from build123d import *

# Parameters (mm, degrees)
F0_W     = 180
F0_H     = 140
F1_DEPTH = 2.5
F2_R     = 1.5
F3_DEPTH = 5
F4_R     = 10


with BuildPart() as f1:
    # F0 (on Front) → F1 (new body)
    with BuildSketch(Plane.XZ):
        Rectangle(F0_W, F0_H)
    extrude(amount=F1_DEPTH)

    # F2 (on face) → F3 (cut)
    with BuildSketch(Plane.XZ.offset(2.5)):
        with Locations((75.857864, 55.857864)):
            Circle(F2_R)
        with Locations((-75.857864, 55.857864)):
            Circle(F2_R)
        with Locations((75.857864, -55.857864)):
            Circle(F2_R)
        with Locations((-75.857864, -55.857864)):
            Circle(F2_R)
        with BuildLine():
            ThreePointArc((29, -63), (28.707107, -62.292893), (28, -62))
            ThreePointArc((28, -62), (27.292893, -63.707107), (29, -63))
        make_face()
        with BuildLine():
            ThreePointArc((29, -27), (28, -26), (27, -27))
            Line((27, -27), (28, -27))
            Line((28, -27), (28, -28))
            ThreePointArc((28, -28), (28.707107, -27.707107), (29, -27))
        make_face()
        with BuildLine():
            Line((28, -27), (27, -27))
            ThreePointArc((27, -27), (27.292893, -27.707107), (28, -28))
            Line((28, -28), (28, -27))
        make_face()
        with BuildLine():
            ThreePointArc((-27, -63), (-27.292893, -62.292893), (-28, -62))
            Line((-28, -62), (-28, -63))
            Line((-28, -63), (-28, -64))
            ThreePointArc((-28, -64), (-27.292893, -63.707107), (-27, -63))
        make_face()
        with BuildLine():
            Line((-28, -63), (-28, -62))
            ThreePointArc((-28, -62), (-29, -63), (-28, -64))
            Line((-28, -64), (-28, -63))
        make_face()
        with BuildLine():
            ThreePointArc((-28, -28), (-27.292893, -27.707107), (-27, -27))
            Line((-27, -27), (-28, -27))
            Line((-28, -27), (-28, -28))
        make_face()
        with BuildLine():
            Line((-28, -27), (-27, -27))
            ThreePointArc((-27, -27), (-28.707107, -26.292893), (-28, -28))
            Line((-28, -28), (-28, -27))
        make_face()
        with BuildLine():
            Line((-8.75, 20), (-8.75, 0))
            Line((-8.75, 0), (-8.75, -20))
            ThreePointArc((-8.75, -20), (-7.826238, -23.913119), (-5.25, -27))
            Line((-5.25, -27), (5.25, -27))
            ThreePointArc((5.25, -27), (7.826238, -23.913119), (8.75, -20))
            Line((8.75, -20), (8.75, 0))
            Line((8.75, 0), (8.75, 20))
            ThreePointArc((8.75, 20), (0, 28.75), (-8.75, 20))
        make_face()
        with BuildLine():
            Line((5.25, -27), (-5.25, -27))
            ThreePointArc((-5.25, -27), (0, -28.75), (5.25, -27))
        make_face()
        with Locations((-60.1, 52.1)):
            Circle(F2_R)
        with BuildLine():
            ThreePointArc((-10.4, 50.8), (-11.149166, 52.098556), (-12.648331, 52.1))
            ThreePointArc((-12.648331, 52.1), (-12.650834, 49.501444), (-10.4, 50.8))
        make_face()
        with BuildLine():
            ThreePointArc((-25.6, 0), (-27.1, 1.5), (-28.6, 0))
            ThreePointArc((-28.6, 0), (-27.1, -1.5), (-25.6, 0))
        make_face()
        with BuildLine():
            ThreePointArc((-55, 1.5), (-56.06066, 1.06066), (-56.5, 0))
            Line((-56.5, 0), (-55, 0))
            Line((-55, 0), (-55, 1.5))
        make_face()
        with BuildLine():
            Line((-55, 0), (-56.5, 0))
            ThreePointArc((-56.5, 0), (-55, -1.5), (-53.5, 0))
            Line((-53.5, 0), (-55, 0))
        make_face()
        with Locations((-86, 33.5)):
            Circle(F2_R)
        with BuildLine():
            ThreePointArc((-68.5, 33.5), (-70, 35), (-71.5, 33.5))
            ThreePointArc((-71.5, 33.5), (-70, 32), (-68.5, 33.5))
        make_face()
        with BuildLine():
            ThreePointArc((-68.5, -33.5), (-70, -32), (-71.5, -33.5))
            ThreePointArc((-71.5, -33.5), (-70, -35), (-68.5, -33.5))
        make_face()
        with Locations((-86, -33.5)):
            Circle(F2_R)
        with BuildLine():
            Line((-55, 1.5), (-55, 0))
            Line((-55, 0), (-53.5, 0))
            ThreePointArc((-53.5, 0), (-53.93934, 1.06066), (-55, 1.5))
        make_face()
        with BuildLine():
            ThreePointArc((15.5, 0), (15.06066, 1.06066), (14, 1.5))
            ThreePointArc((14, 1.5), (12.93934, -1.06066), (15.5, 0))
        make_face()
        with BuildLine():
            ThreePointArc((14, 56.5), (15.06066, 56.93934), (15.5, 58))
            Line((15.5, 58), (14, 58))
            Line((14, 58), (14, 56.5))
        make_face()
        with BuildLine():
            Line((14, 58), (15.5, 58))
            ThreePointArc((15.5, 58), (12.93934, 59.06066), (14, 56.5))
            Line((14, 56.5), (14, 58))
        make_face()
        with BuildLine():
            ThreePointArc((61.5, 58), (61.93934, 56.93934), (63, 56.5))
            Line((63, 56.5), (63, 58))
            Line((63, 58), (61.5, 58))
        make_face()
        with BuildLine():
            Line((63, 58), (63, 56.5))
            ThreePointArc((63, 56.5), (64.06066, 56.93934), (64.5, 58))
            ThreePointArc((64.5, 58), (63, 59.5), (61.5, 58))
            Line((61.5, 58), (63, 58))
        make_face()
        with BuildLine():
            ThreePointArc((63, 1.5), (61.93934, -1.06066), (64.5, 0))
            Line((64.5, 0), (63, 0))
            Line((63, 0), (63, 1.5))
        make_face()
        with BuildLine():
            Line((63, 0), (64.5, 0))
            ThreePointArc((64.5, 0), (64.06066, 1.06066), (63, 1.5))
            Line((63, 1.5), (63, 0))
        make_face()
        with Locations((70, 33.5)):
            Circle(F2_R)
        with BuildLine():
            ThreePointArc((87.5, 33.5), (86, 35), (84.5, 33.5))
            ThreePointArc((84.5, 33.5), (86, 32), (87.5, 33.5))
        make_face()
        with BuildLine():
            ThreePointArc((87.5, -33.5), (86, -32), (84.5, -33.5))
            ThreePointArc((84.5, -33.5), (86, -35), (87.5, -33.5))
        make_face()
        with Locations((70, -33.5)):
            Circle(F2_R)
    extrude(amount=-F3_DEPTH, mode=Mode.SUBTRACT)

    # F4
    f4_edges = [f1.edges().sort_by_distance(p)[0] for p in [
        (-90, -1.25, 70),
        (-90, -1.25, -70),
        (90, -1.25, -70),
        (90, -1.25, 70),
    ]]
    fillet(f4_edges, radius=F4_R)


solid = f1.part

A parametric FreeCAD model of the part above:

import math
import FreeCAD as App
import Part
import Sketcher

V = App.Vector


def edges_at(feature, points):
    """Names of the edges that pass closest to the given points."""
    edges = feature.Shape.Edges
    near = lambda p: min(range(len(edges)), key=lambda i: edges[i].distToShape(Part.Vertex(*p))[0])
    return sorted({f"Edge{near(p) + 1}" for p in points})

doc = App.newDocument("Part")
params = doc.addObject("Spreadsheet::Sheet", "Params")
for row, (alias, value) in enumerate([
    ("sketch1_width", "180 mm"),
    ("sketch1_height", "140 mm"),
    ("pad1_length", "2.5 mm"),
    ("sketch2_diameter", "3 mm"),
    ("sketch2_radius", "0.999999 mm"),
    ("sketch2_height", "40 mm"),
    ("sketch2_radius2", "8.749999 mm"),
    ("pocket1_length", "5 mm"),
    ("fillet_radius", "10 mm"),
], start=1):
    params.set(f"A{row}", alias)
    params.set(f"B{row}", "=" + value)
    params.setAlias(f"B{row}", alias)

body = doc.addObject("PartDesign::Body", "Body")

sketch1 = body.newObject("Sketcher::SketchObject", "Sketch")
sketch1.AttachmentSupport = (doc.getObject("XZ_Plane"), [""])
sketch1.MapMode = "FlatFace"
sketch1.addGeometry(Part.LineSegment(V(-90, 70, 0), V(-90, -70, 0)), False)
sketch1.addGeometry(Part.LineSegment(V(-90, -70, 0), V(90, -70, 0)), False)
sketch1.addGeometry(Part.LineSegment(V(90, -70, 0), V(90, 70, 0)), False)
sketch1.addGeometry(Part.LineSegment(V(90, 70, 0), V(-90, 70, 0)), False)
sketch1.addConstraint(Sketcher.Constraint("Coincident", 0, 2, 1, 1))
sketch1.addConstraint(Sketcher.Constraint("Coincident", 1, 2, 2, 1))
sketch1.addConstraint(Sketcher.Constraint("Coincident", 2, 2, 3, 1))
sketch1.addConstraint(Sketcher.Constraint("Coincident", 3, 2, 0, 1))
sketch1.addConstraint(Sketcher.Constraint("Vertical", 0))
sketch1.addConstraint(Sketcher.Constraint("Horizontal", 1))
sketch1.addConstraint(Sketcher.Constraint("Vertical", 2))
sketch1.addConstraint(Sketcher.Constraint("Horizontal", 3))
sketch1.addConstraint(Sketcher.Constraint("Symmetric", 0, 2, 2, 2, -1, 1))
sketch1.addConstraint(Sketcher.Constraint("DistanceX", 1, 1, 1, 2, 180.0))
sketch1.addConstraint(Sketcher.Constraint("DistanceY", 0, 2, 0, 1, 140.0))
sketch1.setExpression("Constraints[9]", "Params.sketch1_width")
sketch1.setExpression("Constraints[10]", "Params.sketch1_height")
pad1 = body.newObject("PartDesign::Pad", "Pad")
pad1.Profile = sketch1
pad1.setExpression("Length", "Params.pad1_length")

sketch2 = body.newObject("Sketcher::SketchObject", "Sketch001")
sketch2.AttachmentSupport = (doc.getObject("XZ_Plane"), [""])
sketch2.MapMode = "FlatFace"
sketch2.AttachmentOffset = App.Placement(V(0, 0, 2.5), App.Rotation())
sketch2.addGeometry(Part.Circle(V(75.9, 55.9, 0), V(0, 0, 1), 1.5), False)
sketch2.addGeometry(Part.Circle(V(-75.9, 55.9, 0), V(0, 0, 1), 1.5), False)
sketch2.addGeometry(Part.Circle(V(75.9, -55.9, 0), V(0, 0, 1), 1.5), False)
sketch2.addGeometry(Part.Circle(V(-75.9, -55.9, 0), V(0, 0, 1), 1.5), False)
sketch2.addGeometry(Part.ArcOfCircle(Part.Circle(V(28, -63, 0), V(0, 0, 1), 1), math.radians(0), math.radians(90)), False)
sketch2.addGeometry(Part.ArcOfCircle(Part.Circle(V(28, -63, 0), V(0, 0, 1), 1), math.radians(90), math.radians(360)), False)
sketch2.addGeometry(Part.ArcOfCircle(Part.Circle(V(28, -27, 0), V(0, 0, 1), 1), math.radians(0), math.radians(180)), False)
sketch2.addGeometry(Part.ArcOfCircle(Part.Circle(V(28, -27, 0), V(0, 0, 1), 1), math.radians(180), math.radians(270)), False)
sketch2.addGeometry(Part.ArcOfCircle(Part.Circle(V(28, -27, 0), V(0, 0, 1), 1), math.radians(-90), math.radians(0)), False)
sketch2.addGeometry(Part.ArcOfCircle(Part.Circle(V(-28, -63, 0), V(0, 0, 1), 1), math.radians(0), math.radians(90)), False)
sketch2.addGeometry(Part.ArcOfCircle(Part.Circle(V(-28, -63, 0), V(0, 0, 1), 1), math.radians(90), math.radians(270)), False)
sketch2.addGeometry(Part.ArcOfCircle(Part.Circle(V(-28, -63, 0), V(0, 0, 1), 1), math.radians(-90), math.radians(0)), False)
sketch2.addGeometry(Part.ArcOfCircle(Part.Circle(V(-28, -27, 0), V(0, 0, 1), 1), math.radians(-90), math.radians(0)), False)
sketch2.addGeometry(Part.ArcOfCircle(Part.Circle(V(-28, -27, 0), V(0, 0, 1), 1), math.radians(0), math.radians(270)), False)
sketch2.addGeometry(Part.LineSegment(V(-8.8, 20, 0), V(-8.8, -20, 0)), False)
sketch2.addGeometry(Part.ArcOfCircle(Part.Circle(V(0, -20, 0), V(0, 0, 1), 8.7), math.radians(180), math.radians(233)), False)
sketch2.addGeometry(Part.ArcOfCircle(Part.Circle(V(0, -20, 0), V(0, 0, 1), 8.8), math.radians(-127), math.radians(-53)), False)
sketch2.addGeometry(Part.ArcOfCircle(Part.Circle(V(0, -20, 0), V(0, 0, 1), 8.7), math.radians(-53), math.radians(0)), False)
sketch2.addGeometry(Part.LineSegment(V(8.8, -20, 0), V(8.8, 20, 0)), False)
sketch2.addGeometry(Part.ArcOfCircle(Part.Circle(V(0, 20, 0), V(0, 0, 1), 8.8), math.radians(0), math.radians(180)), False)
sketch2.addGeometry(Part.Circle(V(-60.1, 52.1, 0), V(0, 0, 1), 1.5), False)
sketch2.addGeometry(Part.ArcOfCircle(Part.Circle(V(-11.9, 50.8, 0), V(0, 0, 1), 1.5), math.radians(0), math.radians(120)), False)
sketch2.addGeometry(Part.ArcOfCircle(Part.Circle(V(-11.9, 50.8, 0), V(0, 0, 1), 1.5), math.radians(120), math.radians(360)), False)
sketch2.addGeometry(Part.Circle(V(-27.1, 0, 0), V(0, 0, 1), 1.5), False)
sketch2.addGeometry(Part.ArcOfCircle(Part.Circle(V(-55, 0, 0), V(0, 0, 1), 1.5), math.radians(90), math.radians(180)), False)
sketch2.addGeometry(Part.ArcOfCircle(Part.Circle(V(-55, 0, 0), V(0, 0, 1), 1.5), math.radians(180), math.radians(360)), False)
sketch2.addGeometry(Part.ArcOfCircle(Part.Circle(V(-55, 0, 0), V(0, 0, 1), 1.5), math.radians(0), math.radians(90)), False)
sketch2.addGeometry(Part.Circle(V(-86, 33.5, 0), V(0, 0, 1), 1.5), False)
sketch2.addGeometry(Part.Circle(V(-70, 33.5, 0), V(0, 0, 1), 1.5), False)
sketch2.addGeometry(Part.Circle(V(-70, -33.5, 0), V(0, 0, 1), 1.5), False)
sketch2.addGeometry(Part.Circle(V(-86, -33.5, 0), V(0, 0, 1), 1.5), False)
sketch2.addGeometry(Part.ArcOfCircle(Part.Circle(V(14, 0, 0), V(0, 0, 1), 1.5), math.radians(0), math.radians(90)), False)
sketch2.addGeometry(Part.ArcOfCircle(Part.Circle(V(14, 0, 0), V(0, 0, 1), 1.5), math.radians(90), math.radians(360)), False)
sketch2.addGeometry(Part.ArcOfCircle(Part.Circle(V(14, 58, 0), V(0, 0, 1), 1.5), math.radians(-90), math.radians(0)), False)
sketch2.addGeometry(Part.ArcOfCircle(Part.Circle(V(14, 58, 0), V(0, 0, 1), 1.5), math.radians(0), math.radians(270)), False)
sketch2.addGeometry(Part.ArcOfCircle(Part.Circle(V(63, 58, 0), V(0, 0, 1), 1.5), math.radians(-180), math.radians(-90)), False)
sketch2.addGeometry(Part.ArcOfCircle(Part.Circle(V(63, 58, 0), V(0, 0, 1), 1.5), math.radians(-90), math.radians(0)), False)
sketch2.addGeometry(Part.ArcOfCircle(Part.Circle(V(63, 58, 0), V(0, 0, 1), 1.5), math.radians(0), math.radians(180)), False)
sketch2.addGeometry(Part.ArcOfCircle(Part.Circle(V(63, 0, 0), V(0, 0, 1), 1.5), math.radians(90), math.radians(360)), False)
sketch2.addGeometry(Part.ArcOfCircle(Part.Circle(V(63, 0, 0), V(0, 0, 1), 1.5), math.radians(0), math.radians(90)), False)
sketch2.addGeometry(Part.Circle(V(70, 33.5, 0), V(0, 0, 1), 1.5), False)
sketch2.addGeometry(Part.Circle(V(86, 33.5, 0), V(0, 0, 1), 1.5), False)
sketch2.addGeometry(Part.Circle(V(86, -33.5, 0), V(0, 0, 1), 1.5), False)
sketch2.addGeometry(Part.Circle(V(70, -33.5, 0), V(0, 0, 1), 1.5), False)
sketch2.addConstraint(Sketcher.Constraint("Tangent", 4, 1, 5, 2))
sketch2.addConstraint(Sketcher.Constraint("Coincident", 5, 1, 4, 2))
sketch2.addConstraint(Sketcher.Constraint("Tangent", 6, 2, 7, 1))
sketch2.addConstraint(Sketcher.Constraint("Tangent", 7, 2, 8, 1))
sketch2.addConstraint(Sketcher.Constraint("Tangent", 8, 2, 6, 1))
sketch2.addConstraint(Sketcher.Constraint("Tangent", 9, 2, 10, 1))
sketch2.addConstraint(Sketcher.Constraint("Tangent", 10, 2, 11, 1))
sketch2.addConstraint(Sketcher.Constraint("Tangent", 11, 2, 9, 1))
sketch2.addConstraint(Sketcher.Constraint("Tangent", 12, 1, 13, 2))
sketch2.addConstraint(Sketcher.Constraint("Coincident", 13, 1, 12, 2))
sketch2.addConstraint(Sketcher.Constraint("Tangent", 14, 2, 15, 1))
sketch2.addConstraint(Sketcher.Constraint("Tangent", 15, 2, 16, 1))
sketch2.addConstraint(Sketcher.Constraint("Tangent", 16, 2, 17, 1))
sketch2.addConstraint(Sketcher.Constraint("Tangent", 17, 2, 18, 1))
sketch2.addConstraint(Sketcher.Constraint("Tangent", 18, 2, 19, 1))
sketch2.addConstraint(Sketcher.Constraint("Tangent", 19, 2, 14, 1))
sketch2.addConstraint(Sketcher.Constraint("Tangent", 21, 1, 22, 2))
sketch2.addConstraint(Sketcher.Constraint("Coincident", 22, 1, 21, 2))
sketch2.addConstraint(Sketcher.Constraint("Tangent", 24, 2, 25, 1))
sketch2.addConstraint(Sketcher.Constraint("Tangent", 25, 2, 26, 1))
sketch2.addConstraint(Sketcher.Constraint("Tangent", 26, 2, 24, 1))
sketch2.addConstraint(Sketcher.Constraint("Tangent", 31, 1, 32, 2))
sketch2.addConstraint(Sketcher.Constraint("Coincident", 32, 1, 31, 2))
sketch2.addConstraint(Sketcher.Constraint("Tangent", 33, 1, 34, 2))
sketch2.addConstraint(Sketcher.Constraint("Coincident", 34, 1, 33, 2))
sketch2.addConstraint(Sketcher.Constraint("Tangent", 35, 2, 36, 1))
sketch2.addConstraint(Sketcher.Constraint("Tangent", 36, 2, 37, 1))
sketch2.addConstraint(Sketcher.Constraint("Tangent", 37, 2, 35, 1))
sketch2.addConstraint(Sketcher.Constraint("Tangent", 38, 1, 39, 2))
sketch2.addConstraint(Sketcher.Constraint("Coincident", 39, 1, 38, 2))
sketch2.addConstraint(Sketcher.Constraint("Vertical", 14))
sketch2.addConstraint(Sketcher.Constraint("Vertical", 18))
sketch2.addConstraint(Sketcher.Constraint("Coincident", 17, 3, 15, 3))
sketch2.addConstraint(Sketcher.Constraint("Equal", 0, 1))
sketch2.addConstraint(Sketcher.Constraint("Equal", 1, 2))
sketch2.addConstraint(Sketcher.Constraint("Equal", 2, 3))
sketch2.addConstraint(Sketcher.Constraint("Equal", 5, 6))
sketch2.addConstraint(Sketcher.Constraint("Equal", 8, 9))
sketch2.addConstraint(Sketcher.Constraint("Equal", 11, 12))
sketch2.addConstraint(Sketcher.Constraint("Equal", 3, 20))
sketch2.addConstraint(Sketcher.Constraint("Equal", 20, 21))
sketch2.addConstraint(Sketcher.Constraint("Equal", 22, 23))
sketch2.addConstraint(Sketcher.Constraint("Equal", 23, 24))
sketch2.addConstraint(Sketcher.Constraint("Equal", 26, 27))
sketch2.addConstraint(Sketcher.Constraint("Equal", 27, 28))
sketch2.addConstraint(Sketcher.Constraint("Equal", 28, 29))
sketch2.addConstraint(Sketcher.Constraint("Equal", 29, 30))
sketch2.addConstraint(Sketcher.Constraint("Equal", 30, 31))
sketch2.addConstraint(Sketcher.Constraint("Equal", 32, 33))
sketch2.addConstraint(Sketcher.Constraint("Equal", 34, 35))
sketch2.addConstraint(Sketcher.Constraint("Equal", 37, 38))
sketch2.addConstraint(Sketcher.Constraint("Equal", 39, 40))
sketch2.addConstraint(Sketcher.Constraint("Equal", 40, 41))
sketch2.addConstraint(Sketcher.Constraint("Equal", 41, 42))
sketch2.addConstraint(Sketcher.Constraint("Equal", 42, 43))
sketch2.addConstraint(Sketcher.Constraint("Symmetric", 1, 3, 2, 3, -1, 1))
sketch2.addConstraint(Sketcher.Constraint("Symmetric", 0, 3, 3, 3, -1, 1))
sketch2.addConstraint(Sketcher.Constraint("Symmetric", 15, 3, 19, 3, -1, 1))
sketch2.addConstraint(Sketcher.Constraint("Symmetric", 29, 3, 40, 3, -1, 1))
sketch2.addConstraint(Sketcher.Constraint("Symmetric", 30, 3, 41, 3, -1, 1))
sketch2.addConstraint(Sketcher.Constraint("Symmetric", 27, 3, 42, 3, -1, 1))
sketch2.addConstraint(Sketcher.Constraint("Symmetric", 28, 3, 43, 3, -1, 1))
sketch2.addConstraint(Sketcher.Constraint("Symmetric", 0, 3, 1, 3, -2))
sketch2.addConstraint(Sketcher.Constraint("Symmetric", 4, 3, 9, 3, -2))
sketch2.addConstraint(Sketcher.Constraint("Symmetric", 6, 3, 12, 3, -2))
sketch2.addConstraint(Sketcher.Constraint("Symmetric", 28, 3, 40, 3, -2))
sketch2.addConstraint(Sketcher.Constraint("Symmetric", 27, 3, 41, 3, -2))
sketch2.addConstraint(Sketcher.Constraint("PointOnObject", 23, 3, -1))
sketch2.addConstraint(Sketcher.Constraint("PointOnObject", 24, 3, -1))
sketch2.addConstraint(Sketcher.Constraint("PointOnObject", 31, 3, -1))
sketch2.addConstraint(Sketcher.Constraint("PointOnObject", 38, 3, -1))
sketch2.addConstraint(Sketcher.Constraint("PointOnObject", 24, 2, -1))
sketch2.addConstraint(Sketcher.Constraint("PointOnObject", 25, 2, -1))
sketch2.addConstraint(Sketcher.Constraint("PointOnObject", 31, 1, -1))
sketch2.addConstraint(Sketcher.Constraint("PointOnObject", 39, 1, -1))
sketch2.addConstraint(Sketcher.Constraint("Horizontal", 27, 3, 28, 3))
sketch2.addConstraint(Sketcher.Constraint("Horizontal", 34, 3, 35, 3))
sketch2.addConstraint(Sketcher.Constraint("Horizontal", 11, 3, 4, 1))
sketch2.addConstraint(Sketcher.Constraint("Horizontal", 13, 3, 6, 2))
sketch2.addConstraint(Sketcher.Constraint("Horizontal", 6, 2, 8, 2))
sketch2.addConstraint(Sketcher.Constraint("Horizontal", 4, 1, 11, 2))
sketch2.addConstraint(Sketcher.Constraint("Horizontal", 8, 2, 13, 1))
sketch2.addConstraint(Sketcher.Constraint("Horizontal", 13, 1, 15, 2))
sketch2.addConstraint(Sketcher.Constraint("Horizontal", 15, 2, 16, 2))
sketch2.addConstraint(Sketcher.Constraint("Horizontal", 22, 3, 21, 1))
sketch2.addConstraint(Sketcher.Constraint("Horizontal", 20, 3, 22, 1))
sketch2.addConstraint(Sketcher.Constraint("Horizontal", 37, 3, 34, 1))
sketch2.addConstraint(Sketcher.Constraint("Horizontal", 34, 1, 36, 2))
sketch2.addConstraint(Sketcher.Constraint("Horizontal", 36, 2, 37, 2))
sketch2.addConstraint(Sketcher.Constraint("Vertical", 5, 3, 6, 3))
sketch2.addConstraint(Sketcher.Constraint("Vertical", 32, 3, 33, 3))
sketch2.addConstraint(Sketcher.Constraint("Vertical", 37, 3, 38, 3))
sketch2.addConstraint(Sketcher.Constraint("Vertical", 8, 3, 5, 1))
sketch2.addConstraint(Sketcher.Constraint("Vertical", 5, 1, 7, 2))
sketch2.addConstraint(Sketcher.Constraint("Vertical", 13, 3, 9, 2))
sketch2.addConstraint(Sketcher.Constraint("Vertical", 9, 2, 10, 2))
sketch2.addConstraint(Sketcher.Constraint("Vertical", 10, 2, 12, 1))
sketch2.addConstraint(Sketcher.Constraint("Vertical", 25, 3, 26, 2))
sketch2.addConstraint(Sketcher.Constraint("Vertical", 34, 3, 32, 1))
sketch2.addConstraint(Sketcher.Constraint("Vertical", 32, 1, 33, 1))
sketch2.addConstraint(Sketcher.Constraint("Vertical", 39, 3, 35, 2))
sketch2.addConstraint(Sketcher.Constraint("Vertical", 35, 2, 38, 1))
sketch2.addConstraint(Sketcher.Constraint("Diameter", 0, 3.0))
sketch2.addConstraint(Sketcher.Constraint("Radius", 4, 0.999999))
sketch2.addConstraint(Sketcher.Constraint("DistanceY", 14, 2, 14, 1, 40.0))
sketch2.addConstraint(Sketcher.Constraint("Radius", 15, 8.749999))
sketch2.addConstraint(Sketcher.Constraint("DistanceX", -1, 1, 4, 3, 28.000001))
sketch2.addConstraint(Sketcher.Constraint("DistanceY", 4, 3, -1, 1, 62.999999))
sketch2.addConstraint(Sketcher.Constraint("DistanceY", 6, 3, -1, 1, 27.0))
sketch2.addConstraint(Sketcher.Constraint("DistanceX", 24, 3, -1, 1, 54.999999))
sketch2.addConstraint(Sketcher.Constraint("DistanceX", 27, 3, -1, 1, 86.0))
sketch2.addConstraint(Sketcher.Constraint("DistanceX", 28, 3, -1, 1, 70.0))
sketch2.addConstraint(Sketcher.Constraint("DistanceX", -1, 1, 31, 3, 13.999999))
sketch2.addConstraint(Sketcher.Constraint("DistanceY", -1, 1, 33, 3, 58.000001))
sketch2.addConstraint(Sketcher.Constraint("DistanceX", -1, 1, 35, 3, 63.000001))
sketch2.addConstraint(Sketcher.Constraint("DistanceX", 20, 3, -1, 1, 60.1))
sketch2.addConstraint(Sketcher.Constraint("DistanceY", -1, 1, 20, 3, 52.1))
sketch2.addConstraint(Sketcher.Constraint("DistanceX", 21, 3, -1, 1, 11.9))
sketch2.addConstraint(Sketcher.Constraint("DistanceY", -1, 1, 21, 3, 50.8))
sketch2.addConstraint(Sketcher.Constraint("DistanceX", 23, 3, -1, 1, 27.1))
sketch2.addConstraint(Sketcher.Constraint("DistanceY", -1, 1, 27, 3, 33.5))
sketch2.addConstraint(Sketcher.Constraint("DistanceX", -1, 1, 0, 3, 75.857864))
sketch2.addConstraint(Sketcher.Constraint("DistanceY", -1, 1, 0, 3, 55.857864))
sketch2.setExpression("Constraints[102]", "Params.sketch2_diameter")
sketch2.setExpression("Constraints[103]", "Params.sketch2_radius")
sketch2.setExpression("Constraints[104]", "Params.sketch2_height")
sketch2.setExpression("Constraints[105]", "Params.sketch2_radius2")
pocket1 = body.newObject("PartDesign::Pocket", "Pocket")
pocket1.Profile = sketch2
pocket1.setExpression("Length", "Params.pocket1_length")
doc.recompute()

fillet = body.newObject("PartDesign::Fillet", "Fillet")
fillet.Base = (pocket1, edges_at(pocket1, [
    (-90, -1.25, 70),
    (-90, -1.25, -70),
    (90, -1.25, -70),
    (90, -1.25, 70),
]))
fillet.setExpression("Radius", "Params.fillet_radius")

doc.recompute()
